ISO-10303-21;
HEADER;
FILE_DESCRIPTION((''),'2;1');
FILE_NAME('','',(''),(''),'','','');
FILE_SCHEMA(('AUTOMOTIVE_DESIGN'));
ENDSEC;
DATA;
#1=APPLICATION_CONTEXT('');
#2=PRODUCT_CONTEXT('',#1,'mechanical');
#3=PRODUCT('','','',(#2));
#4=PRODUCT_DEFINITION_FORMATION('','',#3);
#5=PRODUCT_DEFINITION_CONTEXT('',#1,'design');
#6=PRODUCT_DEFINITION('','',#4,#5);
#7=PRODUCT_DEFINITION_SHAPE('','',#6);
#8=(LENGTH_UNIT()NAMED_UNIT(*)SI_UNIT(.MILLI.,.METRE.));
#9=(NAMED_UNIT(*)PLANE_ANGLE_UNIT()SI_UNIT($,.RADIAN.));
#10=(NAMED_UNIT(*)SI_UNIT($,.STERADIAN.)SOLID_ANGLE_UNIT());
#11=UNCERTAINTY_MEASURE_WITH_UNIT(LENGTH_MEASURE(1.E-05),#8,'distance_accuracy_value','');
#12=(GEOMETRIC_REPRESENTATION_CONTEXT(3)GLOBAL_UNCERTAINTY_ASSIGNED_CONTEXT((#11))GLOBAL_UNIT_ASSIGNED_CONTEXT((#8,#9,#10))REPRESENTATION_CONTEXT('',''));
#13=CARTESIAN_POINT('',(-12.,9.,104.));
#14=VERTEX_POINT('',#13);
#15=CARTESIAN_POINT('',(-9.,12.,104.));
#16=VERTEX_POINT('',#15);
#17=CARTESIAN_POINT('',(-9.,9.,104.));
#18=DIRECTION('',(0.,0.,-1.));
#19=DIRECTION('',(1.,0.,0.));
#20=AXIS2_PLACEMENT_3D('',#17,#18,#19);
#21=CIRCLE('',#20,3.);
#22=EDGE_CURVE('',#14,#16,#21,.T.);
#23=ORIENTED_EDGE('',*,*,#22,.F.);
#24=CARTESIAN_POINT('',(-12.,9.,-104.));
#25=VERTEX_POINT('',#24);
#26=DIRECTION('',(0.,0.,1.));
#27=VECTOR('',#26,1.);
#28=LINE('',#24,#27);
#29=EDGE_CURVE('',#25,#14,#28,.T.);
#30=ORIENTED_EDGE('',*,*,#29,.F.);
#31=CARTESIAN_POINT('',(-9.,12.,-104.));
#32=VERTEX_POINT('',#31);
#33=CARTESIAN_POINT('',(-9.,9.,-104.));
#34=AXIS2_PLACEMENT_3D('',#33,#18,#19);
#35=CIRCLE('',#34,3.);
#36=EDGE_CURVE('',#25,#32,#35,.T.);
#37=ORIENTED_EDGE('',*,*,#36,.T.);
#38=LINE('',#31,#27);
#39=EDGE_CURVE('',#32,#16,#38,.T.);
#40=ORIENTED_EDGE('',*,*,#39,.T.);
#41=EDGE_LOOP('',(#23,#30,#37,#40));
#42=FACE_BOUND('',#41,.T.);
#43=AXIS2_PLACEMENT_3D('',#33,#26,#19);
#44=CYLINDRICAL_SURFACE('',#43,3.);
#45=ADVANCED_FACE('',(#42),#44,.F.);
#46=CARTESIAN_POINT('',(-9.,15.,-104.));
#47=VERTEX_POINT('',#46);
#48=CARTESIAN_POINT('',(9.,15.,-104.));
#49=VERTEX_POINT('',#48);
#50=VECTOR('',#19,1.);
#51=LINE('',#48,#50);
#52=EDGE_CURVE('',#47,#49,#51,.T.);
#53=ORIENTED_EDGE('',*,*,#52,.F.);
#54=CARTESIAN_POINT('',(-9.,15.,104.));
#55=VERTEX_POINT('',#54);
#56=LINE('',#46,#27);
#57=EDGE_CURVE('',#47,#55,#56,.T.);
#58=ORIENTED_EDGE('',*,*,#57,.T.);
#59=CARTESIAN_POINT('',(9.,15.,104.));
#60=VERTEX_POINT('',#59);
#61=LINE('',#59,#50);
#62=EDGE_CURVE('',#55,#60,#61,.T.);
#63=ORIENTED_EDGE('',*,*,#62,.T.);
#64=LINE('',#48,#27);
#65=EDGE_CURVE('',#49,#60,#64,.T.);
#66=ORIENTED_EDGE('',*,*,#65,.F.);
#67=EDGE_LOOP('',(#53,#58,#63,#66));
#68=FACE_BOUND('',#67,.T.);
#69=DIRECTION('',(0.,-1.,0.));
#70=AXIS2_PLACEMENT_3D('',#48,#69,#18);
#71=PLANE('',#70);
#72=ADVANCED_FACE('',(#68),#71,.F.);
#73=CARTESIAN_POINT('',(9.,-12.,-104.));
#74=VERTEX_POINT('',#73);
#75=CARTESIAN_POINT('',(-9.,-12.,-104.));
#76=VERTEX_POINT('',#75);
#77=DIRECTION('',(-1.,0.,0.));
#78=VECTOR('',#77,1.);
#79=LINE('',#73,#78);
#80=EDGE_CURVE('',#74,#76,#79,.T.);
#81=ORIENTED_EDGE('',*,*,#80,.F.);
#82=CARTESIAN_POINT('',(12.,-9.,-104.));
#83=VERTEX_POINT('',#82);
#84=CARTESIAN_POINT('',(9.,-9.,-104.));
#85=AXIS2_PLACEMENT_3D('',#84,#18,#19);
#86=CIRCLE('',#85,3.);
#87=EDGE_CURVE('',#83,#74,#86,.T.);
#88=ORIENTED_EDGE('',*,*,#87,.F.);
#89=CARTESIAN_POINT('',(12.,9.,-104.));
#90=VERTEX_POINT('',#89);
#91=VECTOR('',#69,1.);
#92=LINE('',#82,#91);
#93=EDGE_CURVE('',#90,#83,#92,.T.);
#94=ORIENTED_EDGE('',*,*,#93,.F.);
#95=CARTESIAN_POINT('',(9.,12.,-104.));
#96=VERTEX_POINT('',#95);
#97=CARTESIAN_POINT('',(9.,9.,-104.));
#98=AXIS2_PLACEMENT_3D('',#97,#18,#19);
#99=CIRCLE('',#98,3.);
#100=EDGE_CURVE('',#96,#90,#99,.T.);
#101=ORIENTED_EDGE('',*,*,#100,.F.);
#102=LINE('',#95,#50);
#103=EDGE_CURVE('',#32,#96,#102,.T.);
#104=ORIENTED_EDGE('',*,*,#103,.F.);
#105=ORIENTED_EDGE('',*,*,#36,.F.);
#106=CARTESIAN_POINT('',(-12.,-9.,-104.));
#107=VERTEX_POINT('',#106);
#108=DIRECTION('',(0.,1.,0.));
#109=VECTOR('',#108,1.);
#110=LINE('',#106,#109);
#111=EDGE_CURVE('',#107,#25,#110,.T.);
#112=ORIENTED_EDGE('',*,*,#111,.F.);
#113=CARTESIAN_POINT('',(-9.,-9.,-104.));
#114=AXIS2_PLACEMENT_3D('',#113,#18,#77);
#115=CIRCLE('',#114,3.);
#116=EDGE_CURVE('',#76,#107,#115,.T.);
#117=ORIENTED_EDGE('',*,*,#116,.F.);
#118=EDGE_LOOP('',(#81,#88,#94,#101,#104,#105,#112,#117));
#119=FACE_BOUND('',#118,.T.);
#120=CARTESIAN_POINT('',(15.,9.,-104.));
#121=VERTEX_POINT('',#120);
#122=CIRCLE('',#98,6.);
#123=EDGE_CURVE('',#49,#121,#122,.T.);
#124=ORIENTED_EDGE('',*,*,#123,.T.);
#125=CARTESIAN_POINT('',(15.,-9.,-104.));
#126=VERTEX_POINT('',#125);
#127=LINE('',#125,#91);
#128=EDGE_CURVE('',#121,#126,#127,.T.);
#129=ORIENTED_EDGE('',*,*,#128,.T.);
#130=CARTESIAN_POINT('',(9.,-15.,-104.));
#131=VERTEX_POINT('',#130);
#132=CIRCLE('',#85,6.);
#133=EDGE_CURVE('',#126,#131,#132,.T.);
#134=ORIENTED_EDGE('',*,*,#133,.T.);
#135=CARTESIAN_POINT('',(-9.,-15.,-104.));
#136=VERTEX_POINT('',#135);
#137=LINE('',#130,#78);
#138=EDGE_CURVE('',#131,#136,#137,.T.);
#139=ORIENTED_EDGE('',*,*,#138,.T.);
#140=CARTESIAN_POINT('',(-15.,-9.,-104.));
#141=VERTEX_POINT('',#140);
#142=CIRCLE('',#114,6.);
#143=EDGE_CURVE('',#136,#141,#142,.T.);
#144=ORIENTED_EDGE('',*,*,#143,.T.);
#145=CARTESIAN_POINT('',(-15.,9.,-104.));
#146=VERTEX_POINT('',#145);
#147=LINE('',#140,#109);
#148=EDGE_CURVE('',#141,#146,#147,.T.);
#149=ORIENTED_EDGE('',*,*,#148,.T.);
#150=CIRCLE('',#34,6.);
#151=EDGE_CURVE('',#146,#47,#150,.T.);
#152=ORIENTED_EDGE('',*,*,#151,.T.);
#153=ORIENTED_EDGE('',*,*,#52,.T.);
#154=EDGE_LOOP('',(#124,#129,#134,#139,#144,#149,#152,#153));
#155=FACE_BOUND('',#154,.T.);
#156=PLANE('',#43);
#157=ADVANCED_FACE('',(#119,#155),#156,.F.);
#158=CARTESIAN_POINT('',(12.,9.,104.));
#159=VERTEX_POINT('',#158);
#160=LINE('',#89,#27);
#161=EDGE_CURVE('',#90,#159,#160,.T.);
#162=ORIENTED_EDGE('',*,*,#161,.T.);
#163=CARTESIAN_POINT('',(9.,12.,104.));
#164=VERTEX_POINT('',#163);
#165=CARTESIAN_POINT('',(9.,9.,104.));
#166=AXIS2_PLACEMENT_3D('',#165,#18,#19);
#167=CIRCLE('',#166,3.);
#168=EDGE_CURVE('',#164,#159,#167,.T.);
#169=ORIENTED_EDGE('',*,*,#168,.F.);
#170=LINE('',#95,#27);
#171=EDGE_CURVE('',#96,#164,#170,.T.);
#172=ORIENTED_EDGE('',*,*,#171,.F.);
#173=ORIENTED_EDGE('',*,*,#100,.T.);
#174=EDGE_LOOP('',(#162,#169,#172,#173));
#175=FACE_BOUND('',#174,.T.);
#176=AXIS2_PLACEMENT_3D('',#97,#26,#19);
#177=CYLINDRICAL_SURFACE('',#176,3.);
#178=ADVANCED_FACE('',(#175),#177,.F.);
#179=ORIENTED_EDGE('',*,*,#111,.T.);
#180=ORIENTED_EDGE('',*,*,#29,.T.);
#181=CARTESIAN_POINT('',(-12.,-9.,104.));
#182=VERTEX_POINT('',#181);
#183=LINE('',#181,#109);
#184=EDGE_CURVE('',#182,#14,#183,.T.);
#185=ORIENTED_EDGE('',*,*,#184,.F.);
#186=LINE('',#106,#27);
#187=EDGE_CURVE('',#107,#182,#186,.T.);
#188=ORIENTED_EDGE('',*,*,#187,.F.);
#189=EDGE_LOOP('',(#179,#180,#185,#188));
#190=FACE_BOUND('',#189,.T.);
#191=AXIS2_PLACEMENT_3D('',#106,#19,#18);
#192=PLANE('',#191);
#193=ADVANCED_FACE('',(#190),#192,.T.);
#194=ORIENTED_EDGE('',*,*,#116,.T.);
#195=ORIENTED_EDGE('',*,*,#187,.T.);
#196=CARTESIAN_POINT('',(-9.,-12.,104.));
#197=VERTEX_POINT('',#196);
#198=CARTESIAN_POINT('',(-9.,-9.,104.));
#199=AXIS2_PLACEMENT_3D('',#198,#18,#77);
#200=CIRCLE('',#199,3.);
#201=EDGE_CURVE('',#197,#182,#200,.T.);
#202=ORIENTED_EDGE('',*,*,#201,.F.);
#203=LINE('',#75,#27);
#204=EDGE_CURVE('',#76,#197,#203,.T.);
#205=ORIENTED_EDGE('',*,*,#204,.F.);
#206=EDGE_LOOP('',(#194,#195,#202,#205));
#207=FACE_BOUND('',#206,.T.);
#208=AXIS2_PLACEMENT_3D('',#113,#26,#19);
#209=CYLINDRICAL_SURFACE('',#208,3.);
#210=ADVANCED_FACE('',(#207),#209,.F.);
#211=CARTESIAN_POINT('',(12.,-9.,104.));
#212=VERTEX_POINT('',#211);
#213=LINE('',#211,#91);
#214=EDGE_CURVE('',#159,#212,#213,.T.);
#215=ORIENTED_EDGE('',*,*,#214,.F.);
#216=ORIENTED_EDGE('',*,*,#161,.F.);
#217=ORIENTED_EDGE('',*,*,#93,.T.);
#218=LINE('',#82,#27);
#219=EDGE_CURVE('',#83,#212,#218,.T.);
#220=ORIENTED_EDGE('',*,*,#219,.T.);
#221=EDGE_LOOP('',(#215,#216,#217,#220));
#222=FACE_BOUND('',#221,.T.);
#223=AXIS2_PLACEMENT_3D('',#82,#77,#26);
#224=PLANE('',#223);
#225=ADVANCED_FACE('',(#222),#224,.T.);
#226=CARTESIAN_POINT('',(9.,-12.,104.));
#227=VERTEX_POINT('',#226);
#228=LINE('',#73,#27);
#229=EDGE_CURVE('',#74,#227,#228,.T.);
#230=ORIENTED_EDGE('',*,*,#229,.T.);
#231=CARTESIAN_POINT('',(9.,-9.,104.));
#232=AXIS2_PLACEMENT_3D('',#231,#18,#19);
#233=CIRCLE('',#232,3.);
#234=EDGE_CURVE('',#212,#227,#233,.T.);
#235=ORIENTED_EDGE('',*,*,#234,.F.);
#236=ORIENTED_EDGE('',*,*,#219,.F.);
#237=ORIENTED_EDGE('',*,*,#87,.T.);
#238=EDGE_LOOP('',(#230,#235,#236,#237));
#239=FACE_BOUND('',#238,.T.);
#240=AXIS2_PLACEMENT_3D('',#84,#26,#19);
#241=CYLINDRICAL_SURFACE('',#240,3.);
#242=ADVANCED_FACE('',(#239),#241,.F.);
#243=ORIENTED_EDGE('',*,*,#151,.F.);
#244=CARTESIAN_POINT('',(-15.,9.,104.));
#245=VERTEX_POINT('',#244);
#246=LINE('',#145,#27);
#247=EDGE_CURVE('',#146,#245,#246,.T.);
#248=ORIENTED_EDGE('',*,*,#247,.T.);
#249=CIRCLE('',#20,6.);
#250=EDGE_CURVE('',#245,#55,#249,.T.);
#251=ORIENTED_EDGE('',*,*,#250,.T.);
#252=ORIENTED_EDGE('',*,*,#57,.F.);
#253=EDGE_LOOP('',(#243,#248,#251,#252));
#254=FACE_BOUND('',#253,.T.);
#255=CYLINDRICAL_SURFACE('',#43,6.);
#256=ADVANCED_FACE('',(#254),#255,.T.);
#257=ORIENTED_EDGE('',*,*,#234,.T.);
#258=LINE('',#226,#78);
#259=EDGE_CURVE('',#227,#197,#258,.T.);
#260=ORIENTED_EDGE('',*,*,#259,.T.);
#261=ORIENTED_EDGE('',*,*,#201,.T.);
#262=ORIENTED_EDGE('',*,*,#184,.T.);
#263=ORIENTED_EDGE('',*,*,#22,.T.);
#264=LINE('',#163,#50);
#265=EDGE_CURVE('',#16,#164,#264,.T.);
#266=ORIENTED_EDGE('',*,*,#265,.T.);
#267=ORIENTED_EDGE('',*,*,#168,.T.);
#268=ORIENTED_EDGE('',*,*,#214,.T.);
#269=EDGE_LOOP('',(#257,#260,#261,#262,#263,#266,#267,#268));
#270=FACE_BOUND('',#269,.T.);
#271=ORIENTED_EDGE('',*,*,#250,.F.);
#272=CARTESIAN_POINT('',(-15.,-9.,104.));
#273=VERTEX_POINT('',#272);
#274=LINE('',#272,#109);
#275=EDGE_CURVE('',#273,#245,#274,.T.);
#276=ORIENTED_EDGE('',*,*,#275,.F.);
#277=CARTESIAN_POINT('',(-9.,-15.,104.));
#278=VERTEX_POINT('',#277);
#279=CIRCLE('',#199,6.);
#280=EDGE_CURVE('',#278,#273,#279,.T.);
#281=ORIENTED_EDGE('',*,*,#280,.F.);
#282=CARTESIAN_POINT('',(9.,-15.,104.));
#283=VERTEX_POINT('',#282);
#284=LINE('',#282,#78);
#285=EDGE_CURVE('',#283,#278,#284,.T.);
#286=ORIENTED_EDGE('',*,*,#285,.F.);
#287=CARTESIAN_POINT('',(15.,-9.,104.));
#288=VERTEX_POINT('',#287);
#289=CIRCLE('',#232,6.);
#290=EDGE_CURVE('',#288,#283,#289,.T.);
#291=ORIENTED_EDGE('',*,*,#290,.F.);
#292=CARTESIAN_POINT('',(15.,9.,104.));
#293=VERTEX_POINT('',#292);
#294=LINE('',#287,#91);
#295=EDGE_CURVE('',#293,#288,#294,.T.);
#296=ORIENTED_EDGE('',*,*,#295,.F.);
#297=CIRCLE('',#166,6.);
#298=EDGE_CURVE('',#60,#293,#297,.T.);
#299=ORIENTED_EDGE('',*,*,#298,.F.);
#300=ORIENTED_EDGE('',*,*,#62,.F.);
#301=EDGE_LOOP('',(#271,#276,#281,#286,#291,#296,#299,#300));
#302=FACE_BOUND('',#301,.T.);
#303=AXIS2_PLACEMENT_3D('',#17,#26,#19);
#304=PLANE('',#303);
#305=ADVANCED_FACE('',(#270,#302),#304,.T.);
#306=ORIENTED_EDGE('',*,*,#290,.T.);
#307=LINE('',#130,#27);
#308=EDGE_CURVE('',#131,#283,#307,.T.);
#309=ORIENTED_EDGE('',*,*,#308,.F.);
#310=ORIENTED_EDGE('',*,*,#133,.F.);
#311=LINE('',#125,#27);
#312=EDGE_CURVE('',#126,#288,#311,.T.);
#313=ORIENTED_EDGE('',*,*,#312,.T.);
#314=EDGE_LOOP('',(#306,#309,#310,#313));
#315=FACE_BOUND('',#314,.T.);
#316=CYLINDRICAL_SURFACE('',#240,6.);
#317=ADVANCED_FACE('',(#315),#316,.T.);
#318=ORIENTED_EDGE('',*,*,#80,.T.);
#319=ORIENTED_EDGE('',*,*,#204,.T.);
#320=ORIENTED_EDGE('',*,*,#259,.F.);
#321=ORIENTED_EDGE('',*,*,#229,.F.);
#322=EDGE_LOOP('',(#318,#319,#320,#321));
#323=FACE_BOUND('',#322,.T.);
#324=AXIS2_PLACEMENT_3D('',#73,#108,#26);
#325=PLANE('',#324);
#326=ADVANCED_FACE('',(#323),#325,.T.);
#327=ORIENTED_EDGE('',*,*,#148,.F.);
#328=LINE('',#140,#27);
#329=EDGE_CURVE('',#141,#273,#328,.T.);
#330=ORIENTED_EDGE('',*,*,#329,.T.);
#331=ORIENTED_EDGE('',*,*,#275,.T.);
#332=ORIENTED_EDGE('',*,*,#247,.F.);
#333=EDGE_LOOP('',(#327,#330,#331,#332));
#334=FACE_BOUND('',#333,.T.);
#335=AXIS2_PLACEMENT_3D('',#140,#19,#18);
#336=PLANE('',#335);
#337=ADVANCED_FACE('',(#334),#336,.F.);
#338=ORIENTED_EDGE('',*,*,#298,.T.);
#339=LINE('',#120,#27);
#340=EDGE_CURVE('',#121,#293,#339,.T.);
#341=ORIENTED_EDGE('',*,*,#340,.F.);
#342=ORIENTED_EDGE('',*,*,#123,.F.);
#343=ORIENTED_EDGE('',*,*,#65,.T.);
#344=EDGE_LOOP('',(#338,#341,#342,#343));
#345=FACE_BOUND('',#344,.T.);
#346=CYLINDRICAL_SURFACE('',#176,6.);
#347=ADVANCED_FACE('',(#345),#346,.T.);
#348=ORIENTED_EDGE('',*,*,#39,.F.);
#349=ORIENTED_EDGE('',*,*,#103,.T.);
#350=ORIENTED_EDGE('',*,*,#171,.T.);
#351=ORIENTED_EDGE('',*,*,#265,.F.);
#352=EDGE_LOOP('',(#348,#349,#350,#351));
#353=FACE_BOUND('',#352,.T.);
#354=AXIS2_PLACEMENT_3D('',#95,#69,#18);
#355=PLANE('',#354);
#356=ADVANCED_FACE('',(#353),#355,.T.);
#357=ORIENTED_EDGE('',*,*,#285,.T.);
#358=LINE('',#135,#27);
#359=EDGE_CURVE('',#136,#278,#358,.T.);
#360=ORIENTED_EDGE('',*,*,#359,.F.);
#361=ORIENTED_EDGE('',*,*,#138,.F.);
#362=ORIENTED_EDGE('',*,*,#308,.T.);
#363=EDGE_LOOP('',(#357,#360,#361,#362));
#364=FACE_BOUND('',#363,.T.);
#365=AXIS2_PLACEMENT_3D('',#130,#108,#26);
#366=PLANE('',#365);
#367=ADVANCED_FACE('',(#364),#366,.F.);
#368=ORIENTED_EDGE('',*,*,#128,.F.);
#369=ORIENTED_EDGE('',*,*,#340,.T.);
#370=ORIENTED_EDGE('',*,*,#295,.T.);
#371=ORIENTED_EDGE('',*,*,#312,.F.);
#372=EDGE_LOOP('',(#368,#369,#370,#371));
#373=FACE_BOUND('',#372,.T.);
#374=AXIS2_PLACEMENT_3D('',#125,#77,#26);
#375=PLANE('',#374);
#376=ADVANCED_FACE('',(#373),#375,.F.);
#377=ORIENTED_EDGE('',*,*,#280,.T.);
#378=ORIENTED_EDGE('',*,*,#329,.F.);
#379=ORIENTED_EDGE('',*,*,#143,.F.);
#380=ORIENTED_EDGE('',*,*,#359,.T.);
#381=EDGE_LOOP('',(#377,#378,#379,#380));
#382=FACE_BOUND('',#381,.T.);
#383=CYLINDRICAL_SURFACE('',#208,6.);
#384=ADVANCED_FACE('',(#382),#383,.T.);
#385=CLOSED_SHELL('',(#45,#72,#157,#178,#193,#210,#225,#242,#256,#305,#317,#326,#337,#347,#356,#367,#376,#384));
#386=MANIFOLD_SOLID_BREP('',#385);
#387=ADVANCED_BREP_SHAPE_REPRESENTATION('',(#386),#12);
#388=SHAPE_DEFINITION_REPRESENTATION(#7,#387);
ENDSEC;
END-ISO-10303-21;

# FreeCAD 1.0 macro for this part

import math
import FreeCAD as App
import Part
import Sketcher
from FreeCAD import Vector
Q = App.Units.Quantity

doc = App.newDocument("Part")
body = doc.addObject("PartDesign::Body", "Body")

sketch1 = body.newObject("Sketcher::SketchObject", "Sketch")
sketch1.AttachmentSupport = (doc.getObject("XY_Plane"), [""])
sketch1.MapMode = "FlatFace"
sketch1.addGeometry([
    Part.LineSegment(Vector(9, -15, 0), Vector(-9, -15, 0)),
    Part.ArcOfCircle(Part.Circle(Vector(-9, -9, 0), Vector(0, 0, 1), 6), math.radians(180), math.radians(270)),
    Part.LineSegment(Vector(-15, -9, 0), Vector(-15, 9, 0)),
    Part.ArcOfCircle(Part.Circle(Vector(-9, 9, 0), Vector(0, 0, 1), 6), math.radians(90), math.radians(180)),
    Part.LineSegment(Vector(-9, 15, 0), Vector(9, 15, 0)),
    Part.ArcOfCircle(Part.Circle(Vector(9, 9, 0), Vector(0, 0, 1), 6), math.radians(0), math.radians(90)),
    Part.LineSegment(Vector(15, 9, 0), Vector(15, -9, 0)),
    Part.ArcOfCircle(Part.Circle(Vector(9, -9, 0), Vector(0, 0, 1), 6), math.radians(-90), math.radians(0)),
    Part.ArcOfCircle(Part.Circle(Vector(9, 9, 0), Vector(0, 0, 1), 3), math.radians(0), math.radians(90)),
    Part.LineSegment(Vector(9, 12, 0), Vector(-9, 12, 0)),
    Part.ArcOfCircle(Part.Circle(Vector(-9, 9, 0), Vector(0, 0, 1), 3), math.radians(90), math.radians(180)),
    Part.LineSegment(Vector(-12, 9, 0), Vector(-12, -9, 0)),
    Part.ArcOfCircle(Part.Circle(Vector(-9, -9, 0), Vector(0, 0, 1), 3), math.radians(180), math.radians(270)),
    Part.LineSegment(Vector(-9, -12, 0), Vector(9, -12, 0)),
    Part.ArcOfCircle(Part.Circle(Vector(9, -9, 0), Vector(0, 0, 1), 3), math.radians(-90), math.radians(0)),
    Part.LineSegment(Vector(12, -9, 0), Vector(12, 9, 0)),
], False)
sketch1.addConstraint([
    Sketcher.Constraint("Tangent", 0, 2, 1, 2),
    Sketcher.Constraint("Tangent", 1, 1, 2, 1),
    Sketcher.Constraint("Tangent", 2, 2, 3, 2),
    Sketcher.Constraint("Tangent", 3, 1, 4, 1),
    Sketcher.Constraint("Tangent", 4, 2, 5, 2),
    Sketcher.Constraint("Tangent", 5, 1, 6, 1),
    Sketcher.Constraint("Tangent", 6, 2, 7, 2),
    Sketcher.Constraint("Tangent", 7, 1, 0, 1),
    Sketcher.Constraint("Tangent", 8, 2, 9, 1),
    Sketcher.Constraint("Tangent", 9, 2, 10, 1),
    Sketcher.Constraint("Tangent", 10, 2, 11, 1),
    Sketcher.Constraint("Tangent", 11, 2, 12, 1),
    Sketcher.Constraint("Tangent", 12, 2, 13, 1),
    Sketcher.Constraint("Tangent", 13, 2, 14, 1),
    Sketcher.Constraint("Tangent", 14, 2, 15, 1),
    Sketcher.Constraint("Tangent", 15, 2, 8, 1),
    Sketcher.Constraint("Horizontal", 0),
    Sketcher.Constraint("Vertical", 2),
    Sketcher.Constraint("Horizontal", 4),
    Sketcher.Constraint("Vertical", 6),
    Sketcher.Constraint("Horizontal", 9),
    Sketcher.Constraint("Vertical", 11),
    Sketcher.Constraint("Horizontal", 13),
    Sketcher.Constraint("Vertical", 15),
    Sketcher.Constraint("Coincident", 8, 3, 5, 3),
    Sketcher.Constraint("Coincident", 10, 3, 3, 3),
    Sketcher.Constraint("Coincident", 12, 3, 1, 3),
    Sketcher.Constraint("Equal", 1, 3),
    Sketcher.Constraint("Equal", 3, 5),
    Sketcher.Constraint("Equal", 5, 7),
    Sketcher.Constraint("Equal", 12, 14),
    Sketcher.Constraint("Symmetric", 1, 3, 5, 3, -1, 1),
    Sketcher.Constraint("Equal", 13, 2),
    Sketcher.Constraint("Radius", 1, Q("6 mm")),
    Sketcher.Constraint("Radius", 8, Q("3 mm")),
    Sketcher.Constraint("DistanceX", 0, 2, 0, 1, Q("18 mm")),
])
pad1 = body.newObject("PartDesign::Pad", "Pad")
pad1.Profile = sketch1
pad1.Length = 208
pad1.Midplane = True

doc.recompute()
